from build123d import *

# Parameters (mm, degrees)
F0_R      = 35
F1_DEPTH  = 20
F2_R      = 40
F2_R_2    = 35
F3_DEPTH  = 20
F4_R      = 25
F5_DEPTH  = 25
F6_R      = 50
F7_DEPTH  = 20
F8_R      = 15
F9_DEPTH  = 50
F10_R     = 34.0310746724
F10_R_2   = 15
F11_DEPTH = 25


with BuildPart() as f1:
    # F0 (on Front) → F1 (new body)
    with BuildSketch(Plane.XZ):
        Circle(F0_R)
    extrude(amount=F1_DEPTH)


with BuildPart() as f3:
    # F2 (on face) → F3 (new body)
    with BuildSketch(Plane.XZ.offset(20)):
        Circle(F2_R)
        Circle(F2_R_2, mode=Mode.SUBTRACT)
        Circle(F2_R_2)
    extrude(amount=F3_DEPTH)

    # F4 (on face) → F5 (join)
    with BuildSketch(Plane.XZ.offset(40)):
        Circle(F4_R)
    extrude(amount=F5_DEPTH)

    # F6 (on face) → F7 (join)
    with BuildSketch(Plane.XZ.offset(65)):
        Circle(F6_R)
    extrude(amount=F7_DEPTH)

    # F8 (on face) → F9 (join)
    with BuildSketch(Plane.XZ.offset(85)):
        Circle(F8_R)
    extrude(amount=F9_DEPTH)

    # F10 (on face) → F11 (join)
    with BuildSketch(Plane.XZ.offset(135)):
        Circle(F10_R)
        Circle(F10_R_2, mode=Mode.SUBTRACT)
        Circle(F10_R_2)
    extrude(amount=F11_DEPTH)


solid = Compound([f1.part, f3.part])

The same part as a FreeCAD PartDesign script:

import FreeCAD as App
import Part
import Sketcher
Q = App.Units.Quantity

doc = App.newDocument("Part")
body = doc.addObject("PartDesign::Body", "Body")

# Sketch on XZ plane
sketch1 = doc.addObject("Sketcher::SketchObject", "Sketch")
body.addObject(sketch1)
sketch1.AttachmentSupport = (doc.XZ_Plane, [""])
sketch1.MapMode = "FlatFace"
sketch1.addGeometry(Part.Circle(App.Vector(0, 0, 0), App.Vector(0, 0, 1), 35), False)
sketch1.addConstraint([
    Sketcher.Constraint("Coincident", 0, 3, -1, 1),
    Sketcher.Constraint("Diameter", 0, Q("70 mm")),
])
pad1 = doc.addObject("PartDesign::Pad", "Pad")
body.addObject(pad1)
pad1.Profile = sketch1
pad1.Length = 20
body2 = doc.addObject("PartDesign::Body", "Body001")

# Sketch on XZ plane
sketch2 = doc.addObject("Sketcher::SketchObject", "Sketch001")
body2.addObject(sketch2)
sketch2.AttachmentSupport = (doc.getObject("XZ_Plane001"), [""])
sketch2.MapMode = "FlatFace"
sketch2.AttachmentOffset = App.Placement(App.Vector(0, 0, 20), App.Rotation())
sketch2.addGeometry(Part.Circle(App.Vector(0, 0, 0), App.Vector(0, 0, 1), 40), False)
sketch2.addConstraint([
    Sketcher.Constraint("Coincident", 0, 3, -1, 1),
    Sketcher.Constraint("Diameter", 0, Q("80 mm")),
])
pad2 = doc.addObject("PartDesign::Pad", "Pad001")
body2.addObject(pad2)
pad2.Profile = sketch2
pad2.Length = 20

# Sketch on XZ plane
sketch3 = doc.addObject("Sketcher::SketchObject", "Sketch002")
body2.addObject(sketch3)
sketch3.AttachmentSupport = (doc.getObject("XZ_Plane001"), [""])
sketch3.MapMode = "FlatFace"
sketch3.AttachmentOffset = App.Placement(App.Vector(0, 0, 40), App.Rotation())
sketch3.addGeometry(Part.Circle(App.Vector(0, 0, 0), App.Vector(0, 0, 1), 25), False)
sketch3.addConstraint([
    Sketcher.Constraint("Coincident", 0, 3, -1, 1),
    Sketcher.Constraint("Diameter", 0, Q("50 mm")),
])
pad3 = doc.addObject("PartDesign::Pad", "Pad002")
body2.addObject(pad3)
pad3.Profile = sketch3
pad3.Length = 25

# Sketch on XZ plane
sketch4 = doc.addObject("Sketcher::SketchObject", "Sketch003")
body2.addObject(sketch4)
sketch4.AttachmentSupport = (doc.getObject("XZ_Plane001"), [""])
sketch4.MapMode = "FlatFace"
sketch4.AttachmentOffset = App.Placement(App.Vector(0, 0, 65), App.Rotation())
sketch4.addGeometry(Part.Circle(App.Vector(0, 0, 0), App.Vector(0, 0, 1), 50), False)
sketch4.addConstraint([
    Sketcher.Constraint("Coincident", 0, 3, -1, 1),
    Sketcher.Constraint("Diameter", 0, Q("100 mm")),
])
pad4 = doc.addObject("PartDesign::Pad", "Pad003")
body2.addObject(pad4)
pad4.Profile = sketch4
pad4.Length = 20

# Sketch on XZ plane
sketch5 = doc.addObject("Sketcher::SketchObject", "Sketch004")
body2.addObject(sketch5)
sketch5.AttachmentSupport = (doc.getObject("XZ_Plane001"), [""])
sketch5.MapMode = "FlatFace"
sketch5.AttachmentOffset = App.Placement(App.Vector(0, 0, 85), App.Rotation())
sketch5.addGeometry(Part.Circle(App.Vector(0, 0, 0), App.Vector(0, 0, 1), 15), False)
sketch5.addConstraint([
    Sketcher.Constraint("Coincident", 0, 3, -1, 1),
    Sketcher.Constraint("Diameter", 0, Q("30 mm")),
])
pad5 = doc.addObject("PartDesign::Pad", "Pad004")
body2.addObject(pad5)
pad5.Profile = sketch5
pad5.Length = 50

# Sketch on XZ plane
sketch6 = doc.addObject("Sketcher::SketchObject", "Sketch005")
body2.addObject(sketch6)
sketch6.AttachmentSupport = (doc.getObject("XZ_Plane001"), [""])
sketch6.MapMode = "FlatFace"
sketch6.AttachmentOffset = App.Placement(App.Vector(0, 0, 135), App.Rotation())
sketch6.addGeometry(Part.Circle(App.Vector(0, 0, 0), App.Vector(0, 0, 1), 34), False)
sketch6.addConstraint([
    Sketcher.Constraint("Coincident", 0, 3, -1, 1),
    Sketcher.Constraint("Diameter", 0, Q("68.062149 mm")),
])
pad6 = doc.addObject("PartDesign::Pad", "Pad005")
body2.addObject(pad6)
pad6.Profile = sketch6
pad6.Length = 25

doc.recompute()
